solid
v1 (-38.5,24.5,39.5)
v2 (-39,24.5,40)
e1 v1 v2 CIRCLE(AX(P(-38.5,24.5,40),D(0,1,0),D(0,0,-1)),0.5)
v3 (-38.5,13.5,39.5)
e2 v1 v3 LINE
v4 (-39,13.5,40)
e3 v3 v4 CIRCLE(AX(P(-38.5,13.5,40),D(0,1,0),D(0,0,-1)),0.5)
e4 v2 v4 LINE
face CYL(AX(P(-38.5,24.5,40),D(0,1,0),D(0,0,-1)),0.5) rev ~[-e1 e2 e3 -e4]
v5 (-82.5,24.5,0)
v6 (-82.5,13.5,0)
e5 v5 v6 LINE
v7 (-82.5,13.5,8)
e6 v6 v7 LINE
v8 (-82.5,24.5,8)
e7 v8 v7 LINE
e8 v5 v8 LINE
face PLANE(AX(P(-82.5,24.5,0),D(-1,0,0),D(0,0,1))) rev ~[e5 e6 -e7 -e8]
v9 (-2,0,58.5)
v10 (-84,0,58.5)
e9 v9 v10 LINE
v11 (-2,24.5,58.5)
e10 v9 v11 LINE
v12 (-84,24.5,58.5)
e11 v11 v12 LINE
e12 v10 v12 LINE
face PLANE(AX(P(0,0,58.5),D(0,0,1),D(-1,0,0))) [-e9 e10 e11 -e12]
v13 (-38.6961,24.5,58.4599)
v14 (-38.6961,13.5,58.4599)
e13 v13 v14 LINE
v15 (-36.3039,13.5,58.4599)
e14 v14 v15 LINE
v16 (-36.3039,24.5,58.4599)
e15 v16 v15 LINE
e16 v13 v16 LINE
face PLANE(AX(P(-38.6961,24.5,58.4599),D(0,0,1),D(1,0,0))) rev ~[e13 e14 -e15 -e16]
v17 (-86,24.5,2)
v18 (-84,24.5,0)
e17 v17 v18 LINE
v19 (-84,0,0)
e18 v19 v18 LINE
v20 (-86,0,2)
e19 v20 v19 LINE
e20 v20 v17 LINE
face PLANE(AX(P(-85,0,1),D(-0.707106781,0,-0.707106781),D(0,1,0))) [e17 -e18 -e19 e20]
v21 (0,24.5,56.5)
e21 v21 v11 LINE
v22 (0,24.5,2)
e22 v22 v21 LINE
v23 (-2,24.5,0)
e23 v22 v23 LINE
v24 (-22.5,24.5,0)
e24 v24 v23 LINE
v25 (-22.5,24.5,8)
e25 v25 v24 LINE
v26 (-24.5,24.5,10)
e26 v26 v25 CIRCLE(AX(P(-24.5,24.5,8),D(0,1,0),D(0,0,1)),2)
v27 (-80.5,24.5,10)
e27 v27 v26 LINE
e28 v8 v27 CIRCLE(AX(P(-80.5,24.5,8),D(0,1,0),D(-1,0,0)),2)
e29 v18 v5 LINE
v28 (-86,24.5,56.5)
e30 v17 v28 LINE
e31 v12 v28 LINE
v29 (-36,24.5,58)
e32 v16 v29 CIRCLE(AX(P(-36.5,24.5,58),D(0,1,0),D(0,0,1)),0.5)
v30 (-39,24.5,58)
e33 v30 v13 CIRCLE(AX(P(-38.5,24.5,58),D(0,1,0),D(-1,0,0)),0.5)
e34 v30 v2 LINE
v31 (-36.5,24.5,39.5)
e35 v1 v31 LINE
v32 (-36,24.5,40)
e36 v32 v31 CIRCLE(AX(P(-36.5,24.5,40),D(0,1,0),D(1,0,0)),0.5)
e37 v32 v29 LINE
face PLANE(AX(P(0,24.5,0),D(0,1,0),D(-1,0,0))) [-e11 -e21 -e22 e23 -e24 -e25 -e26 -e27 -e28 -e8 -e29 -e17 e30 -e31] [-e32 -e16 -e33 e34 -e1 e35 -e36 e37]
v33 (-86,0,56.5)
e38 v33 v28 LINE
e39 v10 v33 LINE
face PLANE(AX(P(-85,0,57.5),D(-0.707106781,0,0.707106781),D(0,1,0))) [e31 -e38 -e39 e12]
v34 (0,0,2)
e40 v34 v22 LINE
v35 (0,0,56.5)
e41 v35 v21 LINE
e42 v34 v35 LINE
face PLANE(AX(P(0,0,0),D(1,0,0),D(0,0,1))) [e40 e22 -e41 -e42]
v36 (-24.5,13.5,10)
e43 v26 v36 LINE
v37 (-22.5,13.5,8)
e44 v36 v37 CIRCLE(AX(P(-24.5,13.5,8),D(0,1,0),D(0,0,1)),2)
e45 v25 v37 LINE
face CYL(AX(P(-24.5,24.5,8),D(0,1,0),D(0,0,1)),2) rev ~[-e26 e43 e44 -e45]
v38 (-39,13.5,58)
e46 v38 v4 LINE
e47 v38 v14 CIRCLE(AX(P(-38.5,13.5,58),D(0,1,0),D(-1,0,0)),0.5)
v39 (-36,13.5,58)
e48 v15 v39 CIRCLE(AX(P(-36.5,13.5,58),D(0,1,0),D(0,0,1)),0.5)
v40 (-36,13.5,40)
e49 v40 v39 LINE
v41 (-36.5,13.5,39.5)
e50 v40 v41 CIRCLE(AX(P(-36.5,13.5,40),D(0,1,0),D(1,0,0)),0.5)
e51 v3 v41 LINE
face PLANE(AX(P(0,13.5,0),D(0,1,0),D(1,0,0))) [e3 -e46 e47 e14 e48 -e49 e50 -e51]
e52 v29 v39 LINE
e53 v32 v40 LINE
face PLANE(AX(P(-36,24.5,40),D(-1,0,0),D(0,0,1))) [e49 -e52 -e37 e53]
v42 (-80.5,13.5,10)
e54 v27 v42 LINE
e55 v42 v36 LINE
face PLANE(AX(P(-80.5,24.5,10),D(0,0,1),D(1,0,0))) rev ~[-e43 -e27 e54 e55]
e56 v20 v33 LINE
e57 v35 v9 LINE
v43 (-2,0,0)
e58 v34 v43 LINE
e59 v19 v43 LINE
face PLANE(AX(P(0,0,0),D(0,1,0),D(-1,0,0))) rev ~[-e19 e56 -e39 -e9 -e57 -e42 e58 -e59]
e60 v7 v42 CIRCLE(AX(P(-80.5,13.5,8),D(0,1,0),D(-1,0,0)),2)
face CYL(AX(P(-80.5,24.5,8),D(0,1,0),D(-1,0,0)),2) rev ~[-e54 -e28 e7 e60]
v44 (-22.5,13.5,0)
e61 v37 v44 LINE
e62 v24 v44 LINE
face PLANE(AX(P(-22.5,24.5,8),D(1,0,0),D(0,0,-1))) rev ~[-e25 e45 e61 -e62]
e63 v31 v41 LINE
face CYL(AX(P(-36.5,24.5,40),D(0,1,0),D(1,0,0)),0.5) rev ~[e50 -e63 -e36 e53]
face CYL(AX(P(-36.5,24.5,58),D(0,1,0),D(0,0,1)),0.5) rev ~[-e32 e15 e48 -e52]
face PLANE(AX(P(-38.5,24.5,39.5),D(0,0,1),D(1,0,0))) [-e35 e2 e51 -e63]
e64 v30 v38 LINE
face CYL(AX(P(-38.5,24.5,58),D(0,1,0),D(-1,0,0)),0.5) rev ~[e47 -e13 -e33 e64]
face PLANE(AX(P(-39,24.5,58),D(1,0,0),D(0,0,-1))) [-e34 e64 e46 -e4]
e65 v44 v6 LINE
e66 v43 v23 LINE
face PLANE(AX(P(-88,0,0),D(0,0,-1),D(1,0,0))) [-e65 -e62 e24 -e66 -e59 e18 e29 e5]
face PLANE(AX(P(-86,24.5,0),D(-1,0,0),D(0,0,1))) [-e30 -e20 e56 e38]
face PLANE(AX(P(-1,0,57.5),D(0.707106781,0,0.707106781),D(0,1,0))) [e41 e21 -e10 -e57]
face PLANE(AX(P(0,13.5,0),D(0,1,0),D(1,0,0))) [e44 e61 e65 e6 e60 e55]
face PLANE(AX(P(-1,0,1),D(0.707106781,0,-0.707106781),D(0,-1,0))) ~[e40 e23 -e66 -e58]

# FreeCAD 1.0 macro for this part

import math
import FreeCAD as App
import Part
import Sketcher
from FreeCAD import Vector
Q = App.Units.Quantity


def edges_at(feature, points):
    """Names of the edges that pass closest to the given points."""
    edges = feature.Shape.Edges
    near = lambda p: min(range(len(edges)), key=lambda i: edges[i].distToShape(Part.Vertex(*p))[0])
    return sorted({f"Edge{near(p) + 1}" for p in points})

doc = App.newDocument("Part")
body = doc.addObject("PartDesign::Body", "Body")

sketch1 = doc.addObject("Sketcher::SketchObject", "Sketch")
body.addObject(sketch1)
sketch1.AttachmentSupport = (doc.XZ_Plane, [""])
sketch1.MapMode = "FlatFace"
sketch1.addGeometry([
    Part.LineSegment(Vector(0, 0, 0), Vector(-88, 0, 0)),
    Part.LineSegment(Vector(-88, 0, 0), Vector(-88, 58, 0)),
    Part.LineSegment(Vector(-88, 58, 0), Vector(0, 58, 0)),
    Part.LineSegment(Vector(0, 58, 0), Vector(0, 0, 0)),
], False)
sketch1.addConstraint([
    Sketcher.Constraint("Coincident", 0, 2, 1, 1),
    Sketcher.Constraint("Coincident", 1, 2, 2, 1),
    Sketcher.Constraint("Coincident", 2, 2, 3, 1),
    Sketcher.Constraint("Coincident", 3, 2, 0, 1),
    Sketcher.Constraint("Horizontal", 0),
    Sketcher.Constraint("Vertical", 1),
    Sketcher.Constraint("Horizontal", 2),
    Sketcher.Constraint("Vertical", 3),
    Sketcher.Constraint("Coincident", 3, 2, -1, 1),
    Sketcher.Constraint("DistanceX", 0, 2, 0, 1, Q("88 mm")),
    Sketcher.Constraint("DistanceY", 1, 1, 1, 2, Q("58.5 mm")),
])
pad1 = doc.addObject("PartDesign::Pad", "Pad")
body.addObject(pad1)
pad1.Profile = sketch1
pad1.Length = 24.5
pad1.Reversed = True

sketch2 = doc.addObject("Sketcher::SketchObject", "Sketch001")
body.addObject(sketch2)
sketch2.AttachmentSupport = (doc.XZ_Plane, [""])
sketch2.MapMode = "FlatFace"
sketch2.AttachmentOffset = App.Placement(Vector(0, 0, -24.5), App.Rotation())
sketch2.addGeometry([
    Part.LineSegment(Vector(-22.5, 8, 0), Vector(-22.5, 0, 0)),
    Part.LineSegment(Vector(-22.5, 0, 0), Vector(-82.5, 0, 0)),
    Part.LineSegment(Vector(-82.5, 0, 0), Vector(-82.5, 8, 0)),
    Part.ArcOfCircle(Part.Circle(Vector(-80.5, 8, 0), Vector(0, 0, 1), 2), math.radians(90), math.radians(180)),
    Part.LineSegment(Vector(-80.5, 10, 0), Vector(-24.5, 10, 0)),
    Part.ArcOfCircle(Part.Circle(Vector(-24.5, 8, 0), Vector(0, 0, 1), 2), math.radians(0), math.radians(90)),
    Part.LineSegment(Vector(-86, 58.5, 0), Vector(-86, 0, 0)),
    Part.LineSegment(Vector(-86, 0, 0), Vector(-88, 0, 0)),
    Part.LineSegment(Vector(-88, 0, 0), Vector(-88, 58.5, 0)),
    Part.LineSegment(Vector(-88, 58.5, 0), Vector(-86, 58.5, 0)),
    Part.LineSegment(Vector(-38.7, 58.5, 0), Vector(-36.3, 58.5, 0)),
    Part.ArcOfCircle(Part.Circle(Vector(-36.5, 58, 0), Vector(0, 0, 1), 0.5), math.radians(0), math.radians(67)),
    Part.LineSegment(Vector(-36, 58, 0), Vector(-36, 40, 0)),
    Part.ArcOfCircle(Part.Circle(Vector(-36.5, 40, 0), Vector(0, 0, 1), 0.5), math.radians(-90), math.radians(0)),
    Part.LineSegment(Vector(-36.5, 39.5, 0), Vector(-38.5, 39.5, 0)),
    Part.ArcOfCircle(Part.Circle(Vector(-38.5, 40, 0), Vector(0, 0, 1), 0.5), math.radians(180), math.radians(270)),
    Part.LineSegment(Vector(-39, 40, 0), Vector(-39, 58, 0)),
    Part.ArcOfCircle(Part.Circle(Vector(-38.5, 58, 0), Vector(0, 0, 1), 0.5), math.radians(113), math.radians(180)),
], False)
sketch2.addConstraint([
    Sketcher.Constraint("Coincident", 0, 2, 1, 1),
    Sketcher.Constraint("Coincident", 1, 2, 2, 1),
    Sketcher.Constraint("Tangent", 2, 2, 3, 2),
    Sketcher.Constraint("Tangent", 3, 1, 4, 1),
    Sketcher.Constraint("Tangent", 4, 2, 5, 2),
    Sketcher.Constraint("Tangent", 5, 1, 0, 1),
    Sketcher.Constraint("Coincident", 6, 2, 7, 1),
    Sketcher.Constraint("Coincident", 7, 2, 8, 1),
    Sketcher.Constraint("Coincident", 8, 2, 9, 1),
    Sketcher.Constraint("Coincident", 9, 2, 6, 1),
    Sketcher.Constraint("Coincident", 10, 2, 11, 2),
    Sketcher.Constraint("Tangent", 11, 1, 12, 1),
    Sketcher.Constraint("Tangent", 12, 2, 13, 2),
    Sketcher.Constraint("Tangent", 13, 1, 14, 1),
    Sketcher.Constraint("Tangent", 14, 2, 15, 2),
    Sketcher.Constraint("Tangent", 15, 1, 16, 1),
    Sketcher.Constraint("Tangent", 16, 2, 17, 2),
    Sketcher.Constraint("Coincident", 17, 1, 10, 1),
    Sketcher.Constraint("Vertical", 0),
    Sketcher.Constraint("Horizontal", 1),
    Sketcher.Constraint("Vertical", 2),
    Sketcher.Constraint("Horizontal", 4),
    Sketcher.Constraint("Vertical", 6),
    Sketcher.Constraint("Horizontal", 7),
    Sketcher.Constraint("Vertical", 8),
    Sketcher.Constraint("Horizontal", 9),
    Sketcher.Constraint("Horizontal", 10),
    Sketcher.Constraint("Vertical", 12),
    Sketcher.Constraint("Horizontal", 14),
    Sketcher.Constraint("Vertical", 16),
    Sketcher.Constraint("Equal", 3, 5),
    Sketcher.Constraint("Equal", 11, 13),
    Sketcher.Constraint("Equal", 13, 15),
    Sketcher.Constraint("Equal", 15, 17),
    Sketcher.Constraint("PointOnObject", 0, 2, -1),
    Sketcher.Constraint("PointOnObject", 6, 2, -1),
    Sketcher.Constraint("Horizontal", 11, 3, 17, 3),
    Sketcher.Constraint("Equal", 9, 14),
    Sketcher.Constraint("Radius", 3, Q("2 mm")),
    Sketcher.Constraint("Radius", 11, Q("0.5 mm")),
    Sketcher.Constraint("DistanceX", 4, 1, 4, 2, Q("56 mm")),
    Sketcher.Constraint("DistanceX", 7, 2, 7, 1, Q("2 mm")),
    Sketcher.Constraint("DistanceY", 6, 2, 6, 1, Q("58.5 mm")),
    Sketcher.Constraint("DistanceY", -1, 1, 3, 1, Q("10 mm")),
    Sketcher.Constraint("DistanceX", 6, 2, -1, 1, Q("86 mm")),
    Sketcher.Constraint("DistanceX", 11, 1, -1, 1, Q("36 mm")),
    Sketcher.Constraint("DistanceX", 0, 2, -1, 1, Q("22.5 mm")),
    Sketcher.Constraint("DistanceY", 17, 3, 8, 2, Q("0.5 mm")),
    Sketcher.Constraint("DistanceY", 12, 2, 12, 1, Q("18 mm")),
    Sketcher.Constraint("DistanceX", 10, 1, 10, 2, Q("2.3922 mm")),
])
pocket1 = doc.addObject("PartDesign::Pocket", "Pocket")
body.addObject(pocket1)
pocket1.Profile = sketch2
pocket1.Length = 11
pocket1.Reversed = True

sketch3 = doc.addObject("Sketcher::SketchObject", "Sketch002")
body.addObject(sketch3)
sketch3.AttachmentSupport = (doc.XZ_Plane, [""])
sketch3.MapMode = "FlatFace"
sketch3.AttachmentOffset = App.Placement(Vector(0, 0, -13.5), App.Rotation())
sketch3.addGeometry([
    Part.LineSegment(Vector(-88, 0, 0), Vector(-88, 58.5, 0)),
    Part.LineSegment(Vector(-88, 58.5, 0), Vector(-86, 58.5, 0)),
    Part.LineSegment(Vector(-86, 58.5, 0), Vector(-86, 0, 0)),
    Part.LineSegment(Vector(-86, 0, 0), Vector(-88, 0, 0)),
], False)
sketch3.addConstraint([
    Sketcher.Constraint("Coincident", 0, 2, 1, 1),
    Sketcher.Constraint("Coincident", 1, 2, 2, 1),
    Sketcher.Constraint("Coincident", 2, 2, 3, 1),
    Sketcher.Constraint("Coincident", 3, 2, 0, 1),
    Sketcher.Constraint("Vertical", 0),
    Sketcher.Constraint("Horizontal", 1),
    Sketcher.Constraint("Vertical", 2),
    Sketcher.Constraint("Horizontal", 3),
    Sketcher.Constraint("PointOnObject", 2, 2, -1),
    Sketcher.Constraint("DistanceX", 1, 1, 1, 2, Q("2 mm")),
    Sketcher.Constraint("DistanceY", 0, 1, 0, 2, Q("58.5 mm")),
    Sketcher.Constraint("DistanceX", 0, 2, -1, 1, Q("88 mm")),
])
pocket2 = doc.addObject("PartDesign::Pocket", "Pocket001")
body.addObject(pocket2)
pocket2.Profile = sketch3
pocket2.Length = 50
pocket2.Reversed = True
doc.recompute()

chamfer = doc.addObject("PartDesign::Chamfer", "Chamfer")
body.addObject(chamfer)
chamfer.Base = (pocket2, edges_at(pocket2, [(0, 12.25, 58.5)]))
chamfer.Size = 2
doc.recompute()

chamfer2 = doc.addObject("PartDesign::Chamfer", "Chamfer001")
body.addObject(chamfer2)
chamfer2.Base = (chamfer, edges_at(chamfer, [(0, 12.25, 0)]))
chamfer2.Size = 2
doc.recompute()

chamfer3 = doc.addObject("PartDesign::Chamfer", "Chamfer002")
body.addObject(chamfer3)
chamfer3.Base = (chamfer2, edges_at(chamfer2, [(-86, 12.25, 58.5)]))
chamfer3.Size = 2
doc.recompute()

chamfer4 = doc.addObject("PartDesign::Chamfer", "Chamfer003")
body.addObject(chamfer4)
chamfer4.Base = (chamfer3, edges_at(chamfer3, [(-86, 12.25, 0)]))
chamfer4.Size = 2

doc.recompute()
